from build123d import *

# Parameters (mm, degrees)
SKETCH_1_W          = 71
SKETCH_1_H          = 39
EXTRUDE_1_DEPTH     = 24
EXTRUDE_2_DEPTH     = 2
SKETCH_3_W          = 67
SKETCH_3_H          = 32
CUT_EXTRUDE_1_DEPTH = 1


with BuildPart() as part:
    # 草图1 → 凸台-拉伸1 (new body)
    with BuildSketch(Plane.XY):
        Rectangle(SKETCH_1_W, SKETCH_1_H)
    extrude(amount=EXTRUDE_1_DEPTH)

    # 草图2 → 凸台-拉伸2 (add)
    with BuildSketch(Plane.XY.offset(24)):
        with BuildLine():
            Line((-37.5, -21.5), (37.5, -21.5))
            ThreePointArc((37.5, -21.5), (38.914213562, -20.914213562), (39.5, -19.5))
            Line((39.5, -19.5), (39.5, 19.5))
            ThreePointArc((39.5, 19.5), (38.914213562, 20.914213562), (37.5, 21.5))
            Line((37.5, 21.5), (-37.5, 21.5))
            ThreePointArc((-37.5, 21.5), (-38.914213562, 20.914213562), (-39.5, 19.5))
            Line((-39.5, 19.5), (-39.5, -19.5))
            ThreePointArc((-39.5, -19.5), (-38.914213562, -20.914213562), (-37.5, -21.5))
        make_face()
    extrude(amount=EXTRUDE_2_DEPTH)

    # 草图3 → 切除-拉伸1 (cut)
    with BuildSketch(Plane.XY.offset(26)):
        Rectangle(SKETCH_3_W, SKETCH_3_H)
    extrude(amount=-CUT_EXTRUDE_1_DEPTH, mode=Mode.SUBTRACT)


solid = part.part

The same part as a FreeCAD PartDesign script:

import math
import FreeCAD as App
import Part
import Sketcher
from FreeCAD import Vector
Q = App.Units.Quantity

doc = App.newDocument("Part")
params = doc.addObject("Spreadsheet::Sheet", "Params")
for row, (alias, value) in enumerate([
    ("sketch1_width", "71 mm"),
    ("sketch1_height", "39 mm"),
    ("pad1_length", "24 mm"),
    ("sketch2_radius", "2 mm"),
    ("sketch2_width", "75 mm"),
    ("sketch2_height", "39 mm"),
    ("pad2_length", "2 mm"),
    ("sketch3_width", "67 mm"),
    ("sketch3_height", "32 mm"),
    ("pocket1_length", "1 mm"),
], start=1):
    params.set(f"A{row}", alias)
    params.set(f"B{row}", "=" + value)
    params.setAlias(f"B{row}", alias)

body = doc.addObject("PartDesign::Body", "Body")

sketch1 = body.newObject("Sketcher::SketchObject", "Sketch")
sketch1.AttachmentSupport = (doc.getObject("XY_Plane"), [""])
sketch1.MapMode = "FlatFace"
sketch1.addGeometry([
    Part.LineSegment(Vector(-35.5, 19.5, 0), Vector(-35.5, -19.5, 0)),
    Part.LineSegment(Vector(-35.5, -19.5, 0), Vector(35.5, -19.5, 0)),
    Part.LineSegment(Vector(35.5, -19.5, 0), Vector(35.5, 19.5, 0)),
    Part.LineSegment(Vector(35.5, 19.5, 0), Vector(-35.5, 19.5, 0)),
], False)
sketch1.addConstraint([
    Sketcher.Constraint("Coincident", 0, 2, 1, 1),
    Sketcher.Constraint("Coincident", 1, 2, 2, 1),
    Sketcher.Constraint("Coincident", 2, 2, 3, 1),
    Sketcher.Constraint("Coincident", 3, 2, 0, 1),
    Sketcher.Constraint("Vertical", 0),
    Sketcher.Constraint("Horizontal", 1),
    Sketcher.Constraint("Vertical", 2),
    Sketcher.Constraint("Horizontal", 3),
    Sketcher.Constraint("Symmetric", 0, 2, 2, 2, -1, 1),
    Sketcher.Constraint("DistanceX", 1, 1, 1, 2, Q("71 mm")),
    Sketcher.Constraint("DistanceY", 0, 2, 0, 1, Q("39 mm")),
])
sketch1.setExpression("Constraints[9]", "Params.sketch1_width")
sketch1.setExpression("Constraints[10]", "Params.sketch1_height")
pad1 = body.newObject("PartDesign::Pad", "Pad")
pad1.Profile = sketch1
pad1.setExpression("Length", "Params.pad1_length")

sketch2 = body.newObject("Sketcher::SketchObject", "Sketch001")
sketch2.AttachmentSupport = (doc.getObject("XY_Plane"), [""])
sketch2.MapMode = "FlatFace"
sketch2.AttachmentOffset = App.Placement(Vector(0, 0, 24), App.Rotation())
sketch2.addGeometry([
    Part.LineSegment(Vector(-37.5, -21.5, 0), Vector(37.5, -21.5, 0)),
    Part.ArcOfCircle(Part.Circle(Vector(37.5, -19.5, 0), Vector(0, 0, 1), 2), math.radians(-90), math.radians(0)),
    Part.LineSegment(Vector(39.5, -19.5, 0), Vector(39.5, 19.5, 0)),
    Part.ArcOfCircle(Part.Circle(Vector(37.5, 19.5, 0), Vector(0, 0, 1), 2), math.radians(0), math.radians(90)),
    Part.LineSegment(Vector(37.5, 21.5, 0), Vector(-37.5, 21.5, 0)),
    Part.ArcOfCircle(Part.Circle(Vector(-37.5, 19.5, 0), Vector(0, 0, 1), 2), math.radians(90), math.radians(180)),
    Part.LineSegment(Vector(-39.5, 19.5, 0), Vector(-39.5, -19.5, 0)),
    Part.ArcOfCircle(Part.Circle(Vector(-37.5, -19.5, 0), Vector(0, 0, 1), 2), math.radians(-180), math.radians(-90)),
], False)
sketch2.addConstraint([
    Sketcher.Constraint("Tangent", 0, 2, 1, 1),
    Sketcher.Constraint("Tangent", 1, 2, 2, 1),
    Sketcher.Constraint("Tangent", 2, 2, 3, 1),
    Sketcher.Constraint("Tangent", 3, 2, 4, 1),
    Sketcher.Constraint("Tangent", 4, 2, 5, 1),
    Sketcher.Constraint("Tangent", 5, 2, 6, 1),
    Sketcher.Constraint("Tangent", 6, 2, 7, 1),
    Sketcher.Constraint("Tangent", 7, 2, 0, 1),
    Sketcher.Constraint("Horizontal", 0),
    Sketcher.Constraint("Vertical", 2),
    Sketcher.Constraint("Horizontal", 4),
    Sketcher.Constraint("Vertical", 6),
    Sketcher.Constraint("Equal", 1, 3),
    Sketcher.Constraint("Equal", 3, 5),
    Sketcher.Constraint("Equal", 5, 7),
    Sketcher.Constraint("Symmetric", 1, 3, 5, 3, -1, 1),
    Sketcher.Constraint("Radius", 1, Q("2 mm")),
    Sketcher.Constraint("DistanceX", 0, 1, 0, 2, Q("75 mm")),
    Sketcher.Constraint("DistanceY", 2, 1, 2, 2, Q("39 mm")),
])
sketch2.setExpression("Constraints[16]", "Params.sketch2_radius")
sketch2.setExpression("Constraints[17]", "Params.sketch2_width")
sketch2.setExpression("Constraints[18]", "Params.sketch2_height")
pad2 = body.newObject("PartDesign::Pad", "Pad001")
pad2.Profile = sketch2
pad2.setExpression("Length", "Params.pad2_length")

sketch3 = body.newObject("Sketcher::SketchObject", "Sketch002")
sketch3.AttachmentSupport = (doc.getObject("XY_Plane"), [""])
sketch3.MapMode = "FlatFace"
sketch3.AttachmentOffset = App.Placement(Vector(0, 0, 26), App.Rotation())
sketch3.addGeometry([
    Part.LineSegment(Vector(-33.5, 16, 0), Vector(-33.5, -16, 0)),
    Part.LineSegment(Vector(-33.5, -16, 0), Vector(33.5, -16, 0)),
    Part.LineSegment(Vector(33.5, -16, 0), Vector(33.5, 16, 0)),
    Part.LineSegment(Vector(33.5, 16, 0), Vector(-33.5, 16, 0)),
], False)
sketch3.addConstraint([
    Sketcher.Constraint("Coincident", 0, 2, 1, 1),
    Sketcher.Constraint("Coincident", 1, 2, 2, 1),
    Sketcher.Constraint("Coincident", 2, 2, 3, 1),
    Sketcher.Constraint("Coincident", 3, 2, 0, 1),
    Sketcher.Constraint("Vertical", 0),
    Sketcher.Constraint("Horizontal", 1),
    Sketcher.Constraint("Vertical", 2),
    Sketcher.Constraint("Horizontal", 3),
    Sketcher.Constraint("Symmetric", 0, 2, 2, 2, -1, 1),
    Sketcher.Constraint("DistanceX", 1, 1, 1, 2, Q("67 mm")),
    Sketcher.Constraint("DistanceY", 0, 2, 0, 1, Q("32 mm")),
])
sketch3.setExpression("Constraints[9]", "Params.sketch3_width")
sketch3.setExpression("Constraints[10]", "Params.sketch3_height")
pocket1 = body.newObject("PartDesign::Pocket", "Pocket")
pocket1.Profile = sketch3
pocket1.setExpression("Length", "Params.pocket1_length")

doc.recompute()
